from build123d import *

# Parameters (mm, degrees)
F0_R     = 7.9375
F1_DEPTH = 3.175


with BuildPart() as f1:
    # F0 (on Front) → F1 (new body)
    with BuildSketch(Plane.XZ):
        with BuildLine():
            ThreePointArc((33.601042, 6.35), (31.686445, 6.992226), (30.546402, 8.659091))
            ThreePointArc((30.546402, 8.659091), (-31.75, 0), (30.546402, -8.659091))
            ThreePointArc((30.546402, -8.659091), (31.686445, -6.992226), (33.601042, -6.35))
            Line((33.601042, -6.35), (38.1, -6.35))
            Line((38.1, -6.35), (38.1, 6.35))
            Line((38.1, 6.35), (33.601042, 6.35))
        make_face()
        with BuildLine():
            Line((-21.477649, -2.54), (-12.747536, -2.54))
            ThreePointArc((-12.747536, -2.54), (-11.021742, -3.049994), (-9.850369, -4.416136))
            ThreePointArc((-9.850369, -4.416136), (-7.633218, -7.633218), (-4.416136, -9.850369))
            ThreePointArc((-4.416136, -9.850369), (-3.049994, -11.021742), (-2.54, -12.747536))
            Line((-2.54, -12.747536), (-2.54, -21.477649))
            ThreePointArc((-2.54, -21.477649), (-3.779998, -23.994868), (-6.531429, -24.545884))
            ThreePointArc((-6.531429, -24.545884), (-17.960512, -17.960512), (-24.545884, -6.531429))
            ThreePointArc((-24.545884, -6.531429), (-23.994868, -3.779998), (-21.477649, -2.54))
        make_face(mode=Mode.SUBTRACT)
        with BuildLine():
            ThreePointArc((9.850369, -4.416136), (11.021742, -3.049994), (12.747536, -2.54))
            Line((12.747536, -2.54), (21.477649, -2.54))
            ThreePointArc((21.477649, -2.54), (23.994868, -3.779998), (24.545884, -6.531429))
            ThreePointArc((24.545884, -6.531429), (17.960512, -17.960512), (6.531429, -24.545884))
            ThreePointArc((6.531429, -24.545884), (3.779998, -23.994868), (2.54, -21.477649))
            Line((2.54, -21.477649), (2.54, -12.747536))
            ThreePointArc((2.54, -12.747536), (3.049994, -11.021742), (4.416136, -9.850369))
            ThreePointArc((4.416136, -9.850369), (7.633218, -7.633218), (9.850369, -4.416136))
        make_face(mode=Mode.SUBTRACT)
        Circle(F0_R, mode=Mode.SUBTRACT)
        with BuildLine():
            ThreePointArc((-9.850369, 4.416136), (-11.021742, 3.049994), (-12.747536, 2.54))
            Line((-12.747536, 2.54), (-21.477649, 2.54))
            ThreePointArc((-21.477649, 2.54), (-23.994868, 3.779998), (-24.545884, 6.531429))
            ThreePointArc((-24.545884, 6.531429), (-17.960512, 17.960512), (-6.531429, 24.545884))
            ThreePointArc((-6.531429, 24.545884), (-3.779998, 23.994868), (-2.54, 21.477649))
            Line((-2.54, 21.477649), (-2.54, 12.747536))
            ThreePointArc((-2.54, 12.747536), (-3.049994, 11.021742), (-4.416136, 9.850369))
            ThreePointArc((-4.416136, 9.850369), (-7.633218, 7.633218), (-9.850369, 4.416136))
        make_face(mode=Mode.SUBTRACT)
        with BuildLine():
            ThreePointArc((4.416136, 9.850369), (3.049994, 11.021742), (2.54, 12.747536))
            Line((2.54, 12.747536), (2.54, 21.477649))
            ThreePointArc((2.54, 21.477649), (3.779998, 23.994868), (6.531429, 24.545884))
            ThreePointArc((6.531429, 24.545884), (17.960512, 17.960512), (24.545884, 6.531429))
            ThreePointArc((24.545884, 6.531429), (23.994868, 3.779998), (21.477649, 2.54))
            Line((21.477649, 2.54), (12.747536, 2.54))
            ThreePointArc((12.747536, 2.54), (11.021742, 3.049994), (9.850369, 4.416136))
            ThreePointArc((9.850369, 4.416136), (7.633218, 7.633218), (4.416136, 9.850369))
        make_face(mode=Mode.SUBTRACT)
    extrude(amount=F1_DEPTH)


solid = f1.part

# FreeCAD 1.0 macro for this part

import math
import FreeCAD as App
import Part
import Sketcher

V = App.Vector
Q = App.Units.Quantity

doc = App.newDocument("Part")
params = doc.addObject("Spreadsheet::Sheet", "Params")
for row, (alias, value) in enumerate([
    ("sketch1_radius", "1 in"),
    ("sketch1_radius2", "1.25 in"),
    ("sketch1_diameter", "0.625 in"),
    ("sketch1_height", "0.5 in"),
    ("sketch1_radius3", "0.125 in"),
    ("pad1_length", "0.125 in"),
], start=1):
    params.set(f"A{row}", alias)
    params.set(f"B{row}", "=" + value)
    params.setAlias(f"B{row}", alias)

body = doc.addObject("PartDesign::Body", "Body")

sketch1 = body.newObject("Sketcher::SketchObject", "Sketch")
sketch1.AttachmentSupport = (doc.getObject("XZ_Plane"), [""])
sketch1.MapMode = "FlatFace"
sketch1.addGeometry([
    Part.ArcOfCircle(Part.Circle(V(33.601041, 9.524999, 0), V(0, 0, 1), 3.174999), math.radians(-164.173394), math.radians(-89.999991)),
    Part.ArcOfCircle(Part.Circle(V(0, 0, 0), V(0, 0, 1), 31.75), math.radians(15.82662), math.radians(344.17338)),
    Part.ArcOfCircle(Part.Circle(V(33.601041, -9.524999, 0), V(0, 0, 1), 3.174999), math.radians(89.999991), math.radians(164.173394)),
    Part.LineSegment(V(33.601042, -6.35, 0), V(38.1, -6.35, 0)),
    Part.LineSegment(V(38.1, -6.35, 0), V(38.1, 6.35, 0)),
    Part.LineSegment(V(38.1, 6.35, 0), V(33.601042, 6.35, 0)),
    Part.ArcOfCircle(Part.Circle(V(-21.477649, -5.715, 0), V(0, 0, 1), 3.175), math.radians(90), math.radians(194.900613)),
    Part.LineSegment(V(-21.477649, -2.54, 0), V(-12.747536, -2.54, 0)),
    Part.ArcOfCircle(Part.Circle(V(-12.747538, -5.715002, 0), V(0, 0, 1), 3.175002), math.radians(24.147773), math.radians(89.999972)),
    Part.ArcOfCircle(Part.Circle(V(-0.000004, -0.000004, 0), V(0, 0, 1), 10.794995), math.radians(-155.852272), math.radians(-114.147728)),
    Part.ArcOfCircle(Part.Circle(V(-5.715002, -12.747538, 0), V(0, 0, 1), 3.175002), math.radians(0.000028), math.radians(65.852227)),
    Part.LineSegment(V(-2.54, -12.747536, 0), V(-2.54, -21.477649, 0)),
    Part.ArcOfCircle(Part.Circle(V(-5.715, -21.477649, 0), V(0, 0, 1), 3.175), math.radians(-104.900613), math.radians(0)),
    Part.ArcOfCircle(Part.Circle(V(0, 0, 0), V(0, 0, 1), 25.4), math.radians(-165.099402), math.radians(-104.900598)),
    Part.ArcOfCircle(Part.Circle(V(0.000004, -0.000004, 0), V(0, 0, 1), 10.794995), math.radians(-65.852272), math.radians(-24.147728)),
    Part.ArcOfCircle(Part.Circle(V(12.747538, -5.715002, 0), V(0, 0, 1), 3.175002), math.radians(90.000028), math.radians(155.852227)),
    Part.LineSegment(V(12.747536, -2.54, 0), V(21.477649, -2.54, 0)),
    Part.ArcOfCircle(Part.Circle(V(21.477649, -5.715, 0), V(0, 0, 1), 3.175), math.radians(-14.900613), math.radians(90)),
    Part.ArcOfCircle(Part.Circle(V(0, 0, 0), V(0, 0, 1), 25.4), math.radians(-75.099402), math.radians(-14.900598)),
    Part.ArcOfCircle(Part.Circle(V(5.715, -21.477649, 0), V(0, 0, 1), 3.175), math.radians(180), math.radians(284.900613)),
    Part.LineSegment(V(2.54, -21.477649, 0), V(2.54, -12.747536, 0)),
    Part.ArcOfCircle(Part.Circle(V(5.715002, -12.747538, 0), V(0, 0, 1), 3.175002), math.radians(114.147773), math.radians(179.999972)),
    Part.ArcOfCircle(Part.Circle(V(-0.000004, 0.000004, 0), V(0, 0, 1), 10.794995), math.radians(114.147728), math.radians(155.852272)),
    Part.ArcOfCircle(Part.Circle(V(-12.747538, 5.715002, 0), V(0, 0, 1), 3.175002), math.radians(-89.999972), math.radians(-24.147773)),
    Part.LineSegment(V(-12.747536, 2.54, 0), V(-21.477649, 2.54, 0)),
    Part.ArcOfCircle(Part.Circle(V(-21.477649, 5.715, 0), V(0, 0, 1), 3.175), math.radians(165.099387), math.radians(270)),
    Part.ArcOfCircle(Part.Circle(V(0, 0, 0), V(0, 0, 1), 25.4), math.radians(104.900598), math.radians(165.099402)),
    Part.ArcOfCircle(Part.Circle(V(-5.715, 21.477649, 0), V(0, 0, 1), 3.175), math.radians(0), math.radians(104.900613)),
    Part.LineSegment(V(-2.54, 21.477649, 0), V(-2.54, 12.747536, 0)),
    Part.ArcOfCircle(Part.Circle(V(-5.715002, 12.747538, 0), V(0, 0, 1), 3.175002), math.radians(-65.852227), math.radians(-0.000028)),
    Part.Circle(V(0, 0, 0), V(0, 0, 1), 7.9375),
    Part.ArcOfCircle(Part.Circle(V(0.000004, 0.000004, 0), V(0, 0, 1), 10.794995), math.radians(24.147728), math.radians(65.852272)),
    Part.ArcOfCircle(Part.Circle(V(5.715002, 12.747538, 0), V(0, 0, 1), 3.175002), math.radians(-179.999972), math.radians(-114.147773)),
    Part.LineSegment(V(2.54, 12.747536, 0), V(2.54, 21.477649, 0)),
    Part.ArcOfCircle(Part.Circle(V(5.715, 21.477649, 0), V(0, 0, 1), 3.175), math.radians(75.099387), math.radians(180)),
    Part.ArcOfCircle(Part.Circle(V(0, 0, 0), V(0, 0, 1), 25.4), math.radians(14.900598), math.radians(75.099402)),
    Part.ArcOfCircle(Part.Circle(V(21.477649, 5.715, 0), V(0, 0, 1), 3.175), math.radians(-90), math.radians(14.900613)),
    Part.LineSegment(V(21.477649, 2.54, 0), V(12.747536, 2.54, 0)),
    Part.ArcOfCircle(Part.Circle(V(12.747538, 5.715002, 0), V(0, 0, 1), 3.175002), math.radians(-155.852227), math.radians(-90.000028)),
], False)
sketch1.addConstraint([
    Sketcher.Constraint("Tangent", 0, 1, 1, 1),
    Sketcher.Constraint("Tangent", 1, 2, 2, 2),
    Sketcher.Constraint("Tangent", 2, 1, 3, 1),
    Sketcher.Constraint("Coincident", 3, 2, 4, 1),
    Sketcher.Constraint("Coincident", 4, 2, 5, 1),
    Sketcher.Constraint("Tangent", 5, 2, 0, 2),
    Sketcher.Constraint("Tangent", 6, 1, 7, 1),
    Sketcher.Constraint("Tangent", 7, 2, 8, 2),
    Sketcher.Constraint("Tangent", 8, 1, 9, 1),
    Sketcher.Constraint("Tangent", 9, 2, 10, 2),
    Sketcher.Constraint("Tangent", 10, 1, 11, 1),
    Sketcher.Constraint("Tangent", 11, 2, 12, 2),
    Sketcher.Constraint("Tangent", 12, 1, 13, 2),
    Sketcher.Constraint("Tangent", 13, 1, 6, 2),
    Sketcher.Constraint("Tangent", 14, 2, 15, 2),
    Sketcher.Constraint("Tangent", 15, 1, 16, 1),
    Sketcher.Constraint("Tangent", 16, 2, 17, 2),
    Sketcher.Constraint("Tangent", 17, 1, 18, 2),
    Sketcher.Constraint("Tangent", 18, 1, 19, 2),
    Sketcher.Constraint("Tangent", 19, 1, 20, 1),
    Sketcher.Constraint("Tangent", 20, 2, 21, 2),
    Sketcher.Constraint("Tangent", 21, 1, 14, 1),
    Sketcher.Constraint("Tangent", 22, 2, 23, 2),
    Sketcher.Constraint("Tangent", 23, 1, 24, 1),
    Sketcher.Constraint("Tangent", 24, 2, 25, 2),
    Sketcher.Constraint("Tangent", 25, 1, 26, 2),
    Sketcher.Constraint("Tangent", 26, 1, 27, 2),
    Sketcher.Constraint("Tangent", 27, 1, 28, 1),
    Sketcher.Constraint("Tangent", 28, 2, 29, 2),
    Sketcher.Constraint("Tangent", 29, 1, 22, 1),
    Sketcher.Constraint("Tangent", 31, 2, 32, 2),
    Sketcher.Constraint("Tangent", 32, 1, 33, 1),
    Sketcher.Constraint("Tangent", 33, 2, 34, 2),
    Sketcher.Constraint("Tangent", 34, 1, 35, 2),
    Sketcher.Constraint("Tangent", 35, 1, 36, 2),
    Sketcher.Constraint("Tangent", 36, 1, 37, 1),
    Sketcher.Constraint("Tangent", 37, 2, 38, 2),
    Sketcher.Constraint("Tangent", 38, 1, 31, 1),
    Sketcher.Constraint("Horizontal", 3),
    Sketcher.Constraint("Vertical", 4),
    Sketcher.Constraint("Horizontal", 5),
    Sketcher.Constraint("Horizontal", 7),
    Sketcher.Constraint("Vertical", 11),
    Sketcher.Constraint("Horizontal", 16),
    Sketcher.Constraint("Vertical", 20),
    Sketcher.Constraint("Horizontal", 24),
    Sketcher.Constraint("Vertical", 28),
    Sketcher.Constraint("Vertical", 33),
    Sketcher.Constraint("Horizontal", 37),
    Sketcher.Constraint("Coincident", 1, 3, -1, 1),
    Sketcher.Constraint("Coincident", 9, 3, -1, 1),
    Sketcher.Constraint("Coincident", 13, 3, -1, 1),
    Sketcher.Constraint("Coincident", 14, 3, -1, 1),
    Sketcher.Constraint("Coincident", 18, 3, -1, 1),
    Sketcher.Constraint("Coincident", 22, 3, -1, 1),
    Sketcher.Constraint("Coincident", 26, 3, -1, 1),
    Sketcher.Constraint("Coincident", 30, 3, -1, 1),
    Sketcher.Constraint("Coincident", 31, 3, -1, 1),
    Sketcher.Constraint("Coincident", 35, 3, -1, 1),
    Sketcher.Constraint("Equal", 0, 2),
    Sketcher.Constraint("Equal", 2, 6),
    Sketcher.Constraint("Equal", 8, 10),
    Sketcher.Constraint("Equal", 6, 12),
    Sketcher.Constraint("Equal", 9, 14),
    Sketcher.Constraint("Equal", 10, 15),
    Sketcher.Constraint("Equal", 12, 17),
    Sketcher.Constraint("Equal", 13, 18),
    Sketcher.Constraint("Equal", 17, 19),
    Sketcher.Constraint("Equal", 15, 21),
    Sketcher.Constraint("Equal", 14, 22),
    Sketcher.Constraint("Equal", 21, 23),
    Sketcher.Constraint("Equal", 19, 25),
    Sketcher.Constraint("Equal", 18, 26),
    Sketcher.Constraint("Equal", 25, 27),
    Sketcher.Constraint("Equal", 23, 29),
    Sketcher.Constraint("Equal", 22, 31),
    Sketcher.Constraint("Equal", 29, 32),
    Sketcher.Constraint("Equal", 27, 34),
    Sketcher.Constraint("Equal", 26, 35),
    Sketcher.Constraint("Equal", 34, 36),
    Sketcher.Constraint("Equal", 32, 38),
    Sketcher.Constraint("Horizontal", 8, 3, 15, 3),
    Sketcher.Constraint("Horizontal", 12, 3, 19, 3),
    Sketcher.Constraint("Horizontal", 29, 3, 32, 3),
    Sketcher.Constraint("Horizontal", 25, 3, 36, 3),
    Sketcher.Constraint("Vertical", 0, 3, 2, 3),
    Sketcher.Constraint("Vertical", 8, 3, 23, 3),
    Sketcher.Constraint("Vertical", 12, 3, 27, 3),
    Sketcher.Constraint("Equal", 37, 11),
    Sketcher.Constraint("Radius", 13, Q("1 in")),
    Sketcher.Constraint("Radius", 1, Q("1.25 in")),
    Sketcher.Constraint("Diameter", 30, Q("0.625 in")),
    Sketcher.Constraint("DistanceY", 4, 1, 4, 2, Q("0.5 in")),
    Sketcher.Constraint("Radius", 0, Q("0.125 in")),
    Sketcher.Constraint("Radius", 8, Q("0.1250001 in")),
    Sketcher.Constraint("Radius", 9, Q("0.4249998 in")),
    Sketcher.Constraint("DistanceX", -1, 1, 3, 2, Q("1.5 in")),
    Sketcher.Constraint("DistanceY", 6, 1, -1, 1, Q("0.1 in")),
])
sketch1.setExpression("Constraints[89]", "Params.sketch1_radius")
sketch1.setExpression("Constraints[90]", "Params.sketch1_radius2")
sketch1.setExpression("Constraints[91]", "Params.sketch1_diameter")
sketch1.setExpression("Constraints[92]", "Params.sketch1_height")
sketch1.setExpression("Constraints[93]", "Params.sketch1_radius3")
pad1 = body.newObject("PartDesign::Pad", "Pad")
pad1.Profile = sketch1
pad1.setExpression("Length", "Params.pad1_length")

doc.recompute()
